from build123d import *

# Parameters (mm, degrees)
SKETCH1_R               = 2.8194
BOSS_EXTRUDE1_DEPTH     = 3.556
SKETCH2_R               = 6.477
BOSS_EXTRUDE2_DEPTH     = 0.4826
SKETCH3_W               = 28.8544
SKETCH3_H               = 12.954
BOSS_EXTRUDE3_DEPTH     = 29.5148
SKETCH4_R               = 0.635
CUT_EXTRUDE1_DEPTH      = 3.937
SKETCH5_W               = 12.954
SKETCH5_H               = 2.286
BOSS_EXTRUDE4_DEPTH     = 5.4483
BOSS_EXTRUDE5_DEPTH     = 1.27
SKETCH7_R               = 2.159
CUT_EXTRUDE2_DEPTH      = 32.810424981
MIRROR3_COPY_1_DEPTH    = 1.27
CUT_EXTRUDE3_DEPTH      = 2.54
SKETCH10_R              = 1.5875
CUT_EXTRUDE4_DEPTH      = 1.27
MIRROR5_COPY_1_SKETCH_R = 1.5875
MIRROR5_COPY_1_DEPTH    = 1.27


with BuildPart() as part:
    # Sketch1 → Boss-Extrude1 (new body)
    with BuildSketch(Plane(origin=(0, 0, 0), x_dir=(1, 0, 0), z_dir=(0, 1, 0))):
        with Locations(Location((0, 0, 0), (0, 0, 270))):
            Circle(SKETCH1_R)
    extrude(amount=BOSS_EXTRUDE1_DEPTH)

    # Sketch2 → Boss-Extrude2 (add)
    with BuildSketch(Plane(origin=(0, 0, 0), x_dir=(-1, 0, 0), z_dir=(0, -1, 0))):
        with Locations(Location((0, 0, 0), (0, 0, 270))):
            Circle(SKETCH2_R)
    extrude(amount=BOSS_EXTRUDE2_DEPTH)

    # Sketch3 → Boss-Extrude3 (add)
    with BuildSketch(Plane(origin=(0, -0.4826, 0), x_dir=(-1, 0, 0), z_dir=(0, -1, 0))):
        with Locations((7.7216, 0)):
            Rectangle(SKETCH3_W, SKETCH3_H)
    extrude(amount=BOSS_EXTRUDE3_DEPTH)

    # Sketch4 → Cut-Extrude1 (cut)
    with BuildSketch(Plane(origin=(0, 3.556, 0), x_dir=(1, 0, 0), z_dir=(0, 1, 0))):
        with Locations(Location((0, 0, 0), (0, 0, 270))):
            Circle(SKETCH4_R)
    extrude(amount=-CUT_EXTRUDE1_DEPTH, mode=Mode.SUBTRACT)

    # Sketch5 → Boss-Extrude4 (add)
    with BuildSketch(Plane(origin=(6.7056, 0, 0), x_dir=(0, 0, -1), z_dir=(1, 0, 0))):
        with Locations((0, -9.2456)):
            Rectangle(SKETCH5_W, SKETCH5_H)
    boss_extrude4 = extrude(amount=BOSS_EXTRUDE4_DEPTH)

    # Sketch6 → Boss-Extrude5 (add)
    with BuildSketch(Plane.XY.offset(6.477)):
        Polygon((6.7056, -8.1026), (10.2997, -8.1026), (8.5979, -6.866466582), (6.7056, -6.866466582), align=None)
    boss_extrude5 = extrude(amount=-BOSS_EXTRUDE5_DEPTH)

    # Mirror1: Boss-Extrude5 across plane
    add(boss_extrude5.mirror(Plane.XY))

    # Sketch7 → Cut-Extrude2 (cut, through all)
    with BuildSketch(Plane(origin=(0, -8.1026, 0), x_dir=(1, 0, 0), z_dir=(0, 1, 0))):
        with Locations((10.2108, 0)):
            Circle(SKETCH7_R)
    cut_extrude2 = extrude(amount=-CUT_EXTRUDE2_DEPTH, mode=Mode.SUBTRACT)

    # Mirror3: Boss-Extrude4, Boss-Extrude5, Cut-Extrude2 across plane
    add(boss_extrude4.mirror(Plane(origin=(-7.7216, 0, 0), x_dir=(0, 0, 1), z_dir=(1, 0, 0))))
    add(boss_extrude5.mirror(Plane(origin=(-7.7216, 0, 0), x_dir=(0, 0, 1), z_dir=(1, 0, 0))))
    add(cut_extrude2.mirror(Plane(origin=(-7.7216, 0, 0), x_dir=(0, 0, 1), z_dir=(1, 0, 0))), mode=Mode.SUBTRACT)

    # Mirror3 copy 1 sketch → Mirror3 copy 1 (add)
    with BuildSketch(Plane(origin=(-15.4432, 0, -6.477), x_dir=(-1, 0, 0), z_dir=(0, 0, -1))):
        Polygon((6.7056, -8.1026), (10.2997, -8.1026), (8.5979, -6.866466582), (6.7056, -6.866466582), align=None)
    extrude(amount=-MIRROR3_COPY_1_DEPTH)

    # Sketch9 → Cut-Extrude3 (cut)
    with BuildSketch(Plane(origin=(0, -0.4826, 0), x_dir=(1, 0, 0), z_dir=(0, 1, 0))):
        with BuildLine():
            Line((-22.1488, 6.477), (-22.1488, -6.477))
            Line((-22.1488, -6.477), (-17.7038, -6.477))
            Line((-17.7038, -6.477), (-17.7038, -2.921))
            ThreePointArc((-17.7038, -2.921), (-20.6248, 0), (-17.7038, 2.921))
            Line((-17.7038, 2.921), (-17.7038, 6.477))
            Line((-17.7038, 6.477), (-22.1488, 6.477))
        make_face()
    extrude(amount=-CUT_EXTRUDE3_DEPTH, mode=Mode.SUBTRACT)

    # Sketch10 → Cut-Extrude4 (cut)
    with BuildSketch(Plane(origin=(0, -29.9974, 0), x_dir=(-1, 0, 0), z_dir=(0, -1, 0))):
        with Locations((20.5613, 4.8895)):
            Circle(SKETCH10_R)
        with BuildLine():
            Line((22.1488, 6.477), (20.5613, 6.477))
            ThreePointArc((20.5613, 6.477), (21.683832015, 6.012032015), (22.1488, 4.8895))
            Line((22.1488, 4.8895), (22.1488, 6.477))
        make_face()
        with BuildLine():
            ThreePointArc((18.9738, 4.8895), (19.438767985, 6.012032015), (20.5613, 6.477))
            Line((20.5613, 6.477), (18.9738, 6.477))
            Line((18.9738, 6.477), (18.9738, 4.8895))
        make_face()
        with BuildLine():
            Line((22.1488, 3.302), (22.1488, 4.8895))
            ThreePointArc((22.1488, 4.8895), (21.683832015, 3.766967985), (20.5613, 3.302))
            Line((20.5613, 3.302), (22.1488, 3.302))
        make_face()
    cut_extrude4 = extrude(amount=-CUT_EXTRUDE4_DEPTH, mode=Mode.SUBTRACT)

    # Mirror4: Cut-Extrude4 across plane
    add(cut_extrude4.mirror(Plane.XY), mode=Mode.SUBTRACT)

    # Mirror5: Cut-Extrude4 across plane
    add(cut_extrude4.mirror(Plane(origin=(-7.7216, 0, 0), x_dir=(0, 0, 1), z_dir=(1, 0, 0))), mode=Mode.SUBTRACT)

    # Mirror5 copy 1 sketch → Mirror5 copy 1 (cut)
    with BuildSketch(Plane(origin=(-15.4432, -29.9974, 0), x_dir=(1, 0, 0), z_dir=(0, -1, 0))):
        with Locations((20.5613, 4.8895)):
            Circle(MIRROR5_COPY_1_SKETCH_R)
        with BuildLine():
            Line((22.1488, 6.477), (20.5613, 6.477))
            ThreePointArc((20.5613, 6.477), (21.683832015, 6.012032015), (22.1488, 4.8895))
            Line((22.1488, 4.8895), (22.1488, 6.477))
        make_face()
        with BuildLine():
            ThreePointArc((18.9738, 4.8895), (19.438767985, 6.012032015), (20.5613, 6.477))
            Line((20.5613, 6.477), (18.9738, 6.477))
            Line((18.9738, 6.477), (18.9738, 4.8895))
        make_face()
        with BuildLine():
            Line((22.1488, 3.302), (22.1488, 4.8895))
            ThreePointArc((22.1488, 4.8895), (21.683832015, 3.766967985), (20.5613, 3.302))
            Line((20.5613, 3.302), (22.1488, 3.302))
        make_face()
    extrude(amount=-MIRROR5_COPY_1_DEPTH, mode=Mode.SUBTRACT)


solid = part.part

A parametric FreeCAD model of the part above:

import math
import FreeCAD as App
import Part
import Sketcher
from FreeCAD import Vector
Q = App.Units.Quantity


def add_polygon(sketch, points):
    """Adds a closed chain of lines whose ends are joined by coincident constraints."""
    first, n = sketch.GeometryCount, len(points)
    for a, b in zip(points, points[1:] + points[:1]):
        sketch.addGeometry(Part.LineSegment(App.Vector(*a, 0), App.Vector(*b, 0)), False)
    for i in range(n):
        sketch.addConstraint(Sketcher.Constraint("Coincident", first + i, 2, first + (i + 1) % n, 1))

doc = App.newDocument("Part")
body = doc.addObject("PartDesign::Body", "Body")

# Sketch on XZ plane
sketch1 = body.newObject("Sketcher::SketchObject", "Sketch")
sketch1.AttachmentSupport = (doc.getObject("XZ_Plane"), [""])
sketch1.MapMode = "FlatFace"
sketch1.addGeometry(Part.Circle(Vector(0, 0, 0), Vector(0, 0, 1), 2.8), False)
sketch1.addConstraint(Sketcher.Constraint("Coincident", 0, 3, -1, 1))
sketch1.addConstraint(Sketcher.Constraint("Diameter", 0, Q("0.222 in")))
pad1 = body.newObject("PartDesign::Pad", "Pad")
pad1.Profile = sketch1
pad1.Length = Q("0.14 in")
pad1.Reversed = True

# Sketch on XZ plane
sketch2 = body.newObject("Sketcher::SketchObject", "Sketch001")
sketch2.AttachmentSupport = (doc.getObject("XZ_Plane"), [""])
sketch2.MapMode = "FlatFace"
sketch2.addGeometry(Part.Circle(Vector(0, 0, 0), Vector(0, 0, 1), 6), False)
sketch2.addConstraint(Sketcher.Constraint("Coincident", 0, 3, -1, 1))
sketch2.addConstraint(Sketcher.Constraint("Diameter", 0, Q("0.51 in")))
pad2 = body.newObject("PartDesign::Pad", "Pad001")
pad2.Profile = sketch2
pad2.Length = Q("0.019 in")

# Sketch on XZ plane
sketch3 = body.newObject("Sketcher::SketchObject", "Sketch002")
sketch3.AttachmentSupport = (doc.getObject("XZ_Plane"), [""])
sketch3.MapMode = "FlatFace"
sketch3.AttachmentOffset = App.Placement(Vector(0, 0, 0.019 * 25.4), App.Rotation())
add_polygon(sketch3, [(7, -6), (7, 6), (-22, 6), (-22, -6)])  # lines 0-3
sketch3.addConstraint(Sketcher.Constraint("Vertical", 0))
sketch3.addConstraint(Sketcher.Constraint("Horizontal", 1))
sketch3.addConstraint(Sketcher.Constraint("Vertical", 2))
sketch3.addConstraint(Sketcher.Constraint("Horizontal", 3))
sketch3.addConstraint(Sketcher.Constraint("DistanceY", 0, 1, 0, 2, Q("0.51 in")))
sketch3.addConstraint(Sketcher.Constraint("DistanceX", 1, 2, 1, 1, Q("1.136 in")))
sketch3.addConstraint(Sketcher.Constraint("DistanceX", -1, 1, 0, 2, Q("0.264 in")))
sketch3.addConstraint(Sketcher.Constraint("DistanceY", -1, 1, 0, 2, Q("0.255 in")))
pad3 = body.newObject("PartDesign::Pad", "Pad002")
pad3.Profile = sketch3
pad3.Length = Q("1.162 in")

# Sketch on XZ plane
sketch4 = body.newObject("Sketcher::SketchObject", "Sketch003")
sketch4.AttachmentSupport = (doc.getObject("XZ_Plane"), [""])
sketch4.MapMode = "FlatFace"
sketch4.AttachmentOffset = App.Placement(Vector(0, 0, -0.14 * 25.4), App.Rotation())
sketch4.addGeometry(Part.Circle(Vector(0, 0, 0), Vector(0, 0, 1), 0.6), False)
sketch4.addConstraint(Sketcher.Constraint("Coincident", 0, 3, -1, 1))
sketch4.addConstraint(Sketcher.Constraint("Diameter", 0, Q("0.05 in")))
pocket1 = body.newObject("PartDesign::Pocket", "Pocket")
pocket1.Profile = sketch4
pocket1.Length = Q("0.155 in")
pocket1.Reversed = True

# Sketch on YZ plane
sketch5 = body.newObject("Sketcher::SketchObject", "Sketch004")
sketch5.AttachmentSupport = (doc.getObject("YZ_Plane"), [""])
sketch5.MapMode = "FlatFace"
sketch5.AttachmentOffset = App.Placement(Vector(0, 0, 0.264 * 25.4), App.Rotation())
add_polygon(sketch5, [(-8.1, 6.5), (-10.4, 6.5), (-10.4, -6.5), (-8.1, -6.5)])  # lines 0-3
sketch5.addConstraint(Sketcher.Constraint("Horizontal", 0))
sketch5.addConstraint(Sketcher.Constraint("Vertical", 1))
sketch5.addConstraint(Sketcher.Constraint("Horizontal", 2))
sketch5.addConstraint(Sketcher.Constraint("Vertical", 3))
sketch5.addConstraint(Sketcher.Constraint("DistanceX", 0, 2, 0, 1, Q("0.09 in")))
sketch5.addConstraint(Sketcher.Constraint("DistanceY", 1, 2, 1, 1, Q("0.51 in")))
sketch5.addConstraint(Sketcher.Constraint("DistanceX", 0, 2, -1, 1, Q("0.409 in")))
sketch5.addConstraint(Sketcher.Constraint("DistanceY", -1, 1, 0, 2, Q("0.255 in")))
pad4 = body.newObject("PartDesign::Pad", "Pad003")
pad4.Profile = sketch5
pad4.Length = Q("0.2145 in")

# Sketch on XY plane
sketch6 = body.newObject("Sketcher::SketchObject", "Sketch005")
sketch6.AttachmentSupport = (doc.getObject("XY_Plane"), [""])
sketch6.MapMode = "FlatFace"
sketch6.AttachmentOffset = App.Placement(Vector(0, 0, 0.255 * 25.4), App.Rotation())
add_polygon(sketch6, [(6.7, -8.1), (10.3, -8.1), (8.6, -6.9), (6.7, -6.9)])  # lines 0-3
sketch6.addConstraint(Sketcher.Constraint("Horizontal", 0))
sketch6.addConstraint(Sketcher.Constraint("Horizontal", 2))
sketch6.addConstraint(Sketcher.Constraint("Vertical", 3))
sketch6.addConstraint(Sketcher.Constraint("DistanceX", 0, 1, 0, 2, Q("0.1415 in")))
sketch6.addConstraint(Sketcher.Constraint("DistanceX", 2, 2, 2, 1, Q("0.0745 in")))
sketch6.addConstraint(Sketcher.Constraint("DistanceY", 0, 2, -1, 1, Q("0.319 in")))
sketch6.addConstraint(Sketcher.Constraint("DistanceX", -1, 1, 2, 2, Q("0.264 in")))
sketch6.addConstraint(Sketcher.Constraint("DistanceY", 3, 2, 3, 1, 1.236133))
pad5 = body.newObject("PartDesign::Pad", "Pad004")
pad5.Profile = sketch6
pad5.Length = Q("0.05 in")
pad5.Reversed = True
doc.recompute()

mirrored = body.newObject("PartDesign::Mirrored", "Mirrored")
mirrored.Originals = [pad5]
mirrored.MirrorPlane = (doc.getObject("XY_Plane"), [""])
body.Tip = mirrored

# Sketch on XZ plane
sketch7 = body.newObject("Sketcher::SketchObject", "Sketch006")
sketch7.AttachmentSupport = (doc.getObject("XZ_Plane"), [""])
sketch7.MapMode = "FlatFace"
sketch7.AttachmentOffset = App.Placement(Vector(0, 0, 0.319 * 25.4), App.Rotation())
sketch7.addGeometry(Part.Circle(Vector(10.2, 0, 0), Vector(0, 0, 1), 2.2), False)
sketch7.addConstraint(Sketcher.Constraint("PointOnObject", 0, 3, -1))
sketch7.addConstraint(Sketcher.Constraint("Diameter", 0, Q("0.17 in")))
sketch7.addConstraint(Sketcher.Constraint("DistanceX", -1, 1, 0, 3, Q("0.402 in")))
pocket2 = body.newObject("PartDesign::Pocket", "Pocket001")
pocket2.Profile = sketch7
pocket2.Type = "ThroughAll"
pocket2.Reversed = True
doc.recompute()

datumplane = body.newObject("PartDesign::Plane", "DatumPlane")
datumplane.AttachmentSupport = (doc.getObject("YZ_Plane"), [""])
datumplane.MapMode = "FlatFace"
datumplane.AttachmentOffset = App.Placement(Vector(0, 0, -0.304 * 25.4), App.Rotation())
mirrored2 = body.newObject("PartDesign::Mirrored", "Mirrored001")
mirrored2.Originals = [pad4, pad5, pocket2]
mirrored2.MirrorPlane = (datumplane, [""])
body.Tip = mirrored2

# Sketch on XY plane
sketch8 = body.newObject("Sketcher::SketchObject", "Sketch007")
sketch8.AttachmentSupport = (doc.getObject("XY_Plane"), [""])
sketch8.MapMode = "FlatFace"
sketch8.AttachmentOffset = App.Placement(Vector(0, 0, -0.255 * 25.4), App.Rotation())
add_polygon(sketch8, [(-22.1, -8.1), (-25.7, -8.1), (-24, -6.9), (-22.1, -6.9)])  # lines 0-3
sketch8.addConstraint(Sketcher.Constraint("Horizontal", 0))
sketch8.addConstraint(Sketcher.Constraint("Horizontal", 2))
sketch8.addConstraint(Sketcher.Constraint("Vertical", 3))
sketch8.addConstraint(Sketcher.Constraint("DistanceX", 0, 2, 0, 1, Q("0.1415 in")))
sketch8.addConstraint(Sketcher.Constraint("DistanceX", 2, 1, 2, 2, Q("0.0745 in")))
sketch8.addConstraint(Sketcher.Constraint("DistanceY", 0, 2, -1, 1, Q("0.319 in")))
sketch8.addConstraint(Sketcher.Constraint("DistanceX", 2, 2, -1, 1, Q("0.872 in")))
sketch8.addConstraint(Sketcher.Constraint("DistanceY", 3, 2, 3, 1, 1.236133))
pad6 = body.newObject("PartDesign::Pad", "Pad005")
pad6.Profile = sketch8
pad6.Length = Q("0.05 in")

# Sketch on XZ plane
sketch9 = body.newObject("Sketcher::SketchObject", "Sketch008")
sketch9.AttachmentSupport = (doc.getObject("XZ_Plane"), [""])
sketch9.MapMode = "FlatFace"
sketch9.AttachmentOffset = App.Placement(Vector(0, 0, 0.019 * 25.4), App.Rotation())
sketch9.addGeometry(Part.LineSegment(Vector(-22.1, -6.5, 0), Vector(-22.1, 6.5, 0)), False)
sketch9.addGeometry(Part.LineSegment(Vector(-22.1, 6.5, 0), Vector(-17.7, 6.5, 0)), False)
sketch9.addGeometry(Part.LineSegment(Vector(-17.7, 6.5, 0), Vector(-17.7, 2.9, 0)), False)
sketch9.addGeometry(Part.ArcOfCircle(Part.Circle(Vector(-17.7, 0, 0), Vector(0, 0, 1), 2.9), math.radians(90), math.radians(270)), False)
sketch9.addGeometry(Part.LineSegment(Vector(-17.7, -2.9, 0), Vector(-17.7, -6.5, 0)), False)
sketch9.addGeometry(Part.LineSegment(Vector(-17.7, -6.5, 0), Vector(-22.1, -6.5, 0)), False)
sketch9.addConstraint(Sketcher.Constraint("Coincident", 0, 2, 1, 1))
sketch9.addConstraint(Sketcher.Constraint("Coincident", 1, 2, 2, 1))
sketch9.addConstraint(Sketcher.Constraint("Coincident", 2, 2, 3, 1))
sketch9.addConstraint(Sketcher.Constraint("Coincident", 3, 2, 4, 1))
sketch9.addConstraint(Sketcher.Constraint("Coincident", 4, 2, 5, 1))
sketch9.addConstraint(Sketcher.Constraint("Coincident", 5, 2, 0, 1))
sketch9.addConstraint(Sketcher.Constraint("Vertical", 0))
sketch9.addConstraint(Sketcher.Constraint("Horizontal", 1))
sketch9.addConstraint(Sketcher.Constraint("Vertical", 2))
sketch9.addConstraint(Sketcher.Constraint("Vertical", 4))
sketch9.addConstraint(Sketcher.Constraint("Horizontal", 5))
sketch9.addConstraint(Sketcher.Constraint("Symmetric", 2, 2, 3, 2, -1))
sketch9.addConstraint(Sketcher.Constraint("Vertical", 3, 3, 1, 2))
sketch9.addConstraint(Sketcher.Constraint("Equal", 2, 4))
sketch9.addConstraint(Sketcher.Constraint("Radius", 3, Q("0.115 in")))
sketch9.addConstraint(Sketcher.Constraint("DistanceY", 0, 1, 0, 2, Q("0.51 in")))
sketch9.addConstraint(Sketcher.Constraint("DistanceX", 1, 1, 1, 2, Q("0.175 in")))
sketch9.addConstraint(Sketcher.Constraint("DistanceX", 3, 3, -1, 1, Q("0.697 in")))
pocket3 = body.newObject("PartDesign::Pocket", "Pocket002")
pocket3.Profile = sketch9
pocket3.Length = Q("0.1 in")
pocket3.Reversed = True

# Sketch on XZ plane
sketch10 = body.newObject("Sketcher::SketchObject", "Sketch009")
sketch10.AttachmentSupport = (doc.getObject("XZ_Plane"), [""])
sketch10.MapMode = "FlatFace"
sketch10.AttachmentOffset = App.Placement(Vector(0, 0, 1.181 * 25.4), App.Rotation())
sketch10.addGeometry(Part.ArcOfCircle(Part.Circle(Vector(-20.6, -4.9, 0), Vector(0, 0, 1), 1.6), math.radians(0), math.radians(90)), False)
sketch10.addGeometry(Part.LineSegment(Vector(-20.6, -3.3, 0), Vector(-22.1, -3.3, 0)), False)
sketch10.addGeometry(Part.LineSegment(Vector(-22.1, -3.3, 0), Vector(-22.1, -6.5, 0)), False)
sketch10.addGeometry(Part.LineSegment(Vector(-22.1, -6.5, 0), Vector(-19, -6.5, 0)), False)
sketch10.addGeometry(Part.LineSegment(Vector(-19, -6.5, 0), Vector(-19, -4.9, 0)), False)
sketch10.addConstraint(Sketcher.Constraint("Tangent", 0, 2, 1, 1))
sketch10.addConstraint(Sketcher.Constraint("Coincident", 1, 2, 2, 1))
sketch10.addConstraint(Sketcher.Constraint("Coincident", 2, 2, 3, 1))
sketch10.addConstraint(Sketcher.Constraint("Coincident", 3, 2, 4, 1))
sketch10.addConstraint(Sketcher.Constraint("Tangent", 4, 2, 0, 1))
sketch10.addConstraint(Sketcher.Constraint("Horizontal", 1))
sketch10.addConstraint(Sketcher.Constraint("Vertical", 2))
sketch10.addConstraint(Sketcher.Constraint("Horizontal", 3))
sketch10.addConstraint(Sketcher.Constraint("Vertical", 4))
sketch10.addConstraint(Sketcher.Constraint("Equal", 3, 2))
sketch10.addConstraint(Sketcher.Constraint("Radius", 0, Q("0.0625 in")))
sketch10.addConstraint(Sketcher.Constraint("DistanceX", 1, 2, 1, 1, Q("0.0625 in")))
sketch10.addConstraint(Sketcher.Constraint("DistanceY", 0, 2, -1, 1, Q("0.13 in")))
sketch10.addConstraint(Sketcher.Constraint("DistanceX", 1, 2, -1, 1, Q("0.872 in")))
pocket4 = body.newObject("PartDesign::Pocket", "Pocket003")
pocket4.Profile = sketch10
pocket4.Length = Q("0.05 in")
doc.recompute()

mirrored3 = body.newObject("PartDesign::Mirrored", "Mirrored002")
mirrored3.Originals = [pocket4]
mirrored3.MirrorPlane = (doc.getObject("XY_Plane"), [""])
body.Tip = mirrored3
doc.recompute()

datumplane2 = body.newObject("PartDesign::Plane", "DatumPlane001")
datumplane2.AttachmentSupport = (doc.getObject("YZ_Plane"), [""])
datumplane2.MapMode = "FlatFace"
datumplane2.AttachmentOffset = App.Placement(Vector(0, 0, -0.304 * 25.4), App.Rotation())
mirrored4 = body.newObject("PartDesign::Mirrored", "Mirrored003")
mirrored4.Originals = [pocket4]
mirrored4.MirrorPlane = (datumplane2, [""])
body.Tip = mirrored4

# Sketch on XZ plane
sketch11 = body.newObject("Sketcher::SketchObject", "Sketch010")
sketch11.AttachmentSupport = (doc.getObject("XZ_Plane"), [""])
sketch11.MapMode = "FlatFace"
sketch11.AttachmentOffset = App.Placement(Vector(0, 0, 1.181 * 25.4), App.Rotation())
sketch11.addGeometry(Part.ArcOfCircle(Part.Circle(Vector(5.1, 4.9, 0), Vector(0, 0, 1), 1.6), math.radians(180), math.radians(270)), False)
sketch11.addGeometry(Part.LineSegment(Vector(5.1, 3.3, 0), Vector(6.7, 3.3, 0)), False)
sketch11.addGeometry(Part.LineSegment(Vector(6.7, 3.3, 0), Vector(6.7, 6.5, 0)), False)
sketch11.addGeometry(Part.LineSegment(Vector(6.7, 6.5, 0), Vector(3.5, 6.5, 0)), False)
sketch11.addGeometry(Part.LineSegment(Vector(3.5, 6.5, 0), Vector(3.5, 4.9, 0)), False)
sketch11.addConstraint(Sketcher.Constraint("Tangent", 0, 2, 1, 1))
sketch11.addConstraint(Sketcher.Constraint("Coincident", 1, 2, 2, 1))
sketch11.addConstraint(Sketcher.Constraint("Coincident", 2, 2, 3, 1))
sketch11.addConstraint(Sketcher.Constraint("Coincident", 3, 2, 4, 1))
sketch11.addConstraint(Sketcher.Constraint("Tangent", 4, 2, 0, 1))
sketch11.addConstraint(Sketcher.Constraint("Horizontal", 1))
sketch11.addConstraint(Sketcher.Constraint("Vertical", 2))
sketch11.addConstraint(Sketcher.Constraint("Horizontal", 3))
sketch11.addConstraint(Sketcher.Constraint("Vertical", 4))
sketch11.addConstraint(Sketcher.Constraint("Equal", 3, 2))
sketch11.addConstraint(Sketcher.Constraint("Radius", 0, Q("0.0625 in")))
sketch11.addConstraint(Sketcher.Constraint("DistanceX", 1, 1, 1, 2, Q("0.0625 in")))
sketch11.addConstraint(Sketcher.Constraint("DistanceY", -1, 1, 0, 2, Q("0.13 in")))
sketch11.addConstraint(Sketcher.Constraint("DistanceX", -1, 1, 1, 2, Q("0.264 in")))
pocket5 = body.newObject("PartDesign::Pocket", "Pocket004")
pocket5.Profile = sketch11
pocket5.Length = Q("0.05 in")

doc.recompute()
